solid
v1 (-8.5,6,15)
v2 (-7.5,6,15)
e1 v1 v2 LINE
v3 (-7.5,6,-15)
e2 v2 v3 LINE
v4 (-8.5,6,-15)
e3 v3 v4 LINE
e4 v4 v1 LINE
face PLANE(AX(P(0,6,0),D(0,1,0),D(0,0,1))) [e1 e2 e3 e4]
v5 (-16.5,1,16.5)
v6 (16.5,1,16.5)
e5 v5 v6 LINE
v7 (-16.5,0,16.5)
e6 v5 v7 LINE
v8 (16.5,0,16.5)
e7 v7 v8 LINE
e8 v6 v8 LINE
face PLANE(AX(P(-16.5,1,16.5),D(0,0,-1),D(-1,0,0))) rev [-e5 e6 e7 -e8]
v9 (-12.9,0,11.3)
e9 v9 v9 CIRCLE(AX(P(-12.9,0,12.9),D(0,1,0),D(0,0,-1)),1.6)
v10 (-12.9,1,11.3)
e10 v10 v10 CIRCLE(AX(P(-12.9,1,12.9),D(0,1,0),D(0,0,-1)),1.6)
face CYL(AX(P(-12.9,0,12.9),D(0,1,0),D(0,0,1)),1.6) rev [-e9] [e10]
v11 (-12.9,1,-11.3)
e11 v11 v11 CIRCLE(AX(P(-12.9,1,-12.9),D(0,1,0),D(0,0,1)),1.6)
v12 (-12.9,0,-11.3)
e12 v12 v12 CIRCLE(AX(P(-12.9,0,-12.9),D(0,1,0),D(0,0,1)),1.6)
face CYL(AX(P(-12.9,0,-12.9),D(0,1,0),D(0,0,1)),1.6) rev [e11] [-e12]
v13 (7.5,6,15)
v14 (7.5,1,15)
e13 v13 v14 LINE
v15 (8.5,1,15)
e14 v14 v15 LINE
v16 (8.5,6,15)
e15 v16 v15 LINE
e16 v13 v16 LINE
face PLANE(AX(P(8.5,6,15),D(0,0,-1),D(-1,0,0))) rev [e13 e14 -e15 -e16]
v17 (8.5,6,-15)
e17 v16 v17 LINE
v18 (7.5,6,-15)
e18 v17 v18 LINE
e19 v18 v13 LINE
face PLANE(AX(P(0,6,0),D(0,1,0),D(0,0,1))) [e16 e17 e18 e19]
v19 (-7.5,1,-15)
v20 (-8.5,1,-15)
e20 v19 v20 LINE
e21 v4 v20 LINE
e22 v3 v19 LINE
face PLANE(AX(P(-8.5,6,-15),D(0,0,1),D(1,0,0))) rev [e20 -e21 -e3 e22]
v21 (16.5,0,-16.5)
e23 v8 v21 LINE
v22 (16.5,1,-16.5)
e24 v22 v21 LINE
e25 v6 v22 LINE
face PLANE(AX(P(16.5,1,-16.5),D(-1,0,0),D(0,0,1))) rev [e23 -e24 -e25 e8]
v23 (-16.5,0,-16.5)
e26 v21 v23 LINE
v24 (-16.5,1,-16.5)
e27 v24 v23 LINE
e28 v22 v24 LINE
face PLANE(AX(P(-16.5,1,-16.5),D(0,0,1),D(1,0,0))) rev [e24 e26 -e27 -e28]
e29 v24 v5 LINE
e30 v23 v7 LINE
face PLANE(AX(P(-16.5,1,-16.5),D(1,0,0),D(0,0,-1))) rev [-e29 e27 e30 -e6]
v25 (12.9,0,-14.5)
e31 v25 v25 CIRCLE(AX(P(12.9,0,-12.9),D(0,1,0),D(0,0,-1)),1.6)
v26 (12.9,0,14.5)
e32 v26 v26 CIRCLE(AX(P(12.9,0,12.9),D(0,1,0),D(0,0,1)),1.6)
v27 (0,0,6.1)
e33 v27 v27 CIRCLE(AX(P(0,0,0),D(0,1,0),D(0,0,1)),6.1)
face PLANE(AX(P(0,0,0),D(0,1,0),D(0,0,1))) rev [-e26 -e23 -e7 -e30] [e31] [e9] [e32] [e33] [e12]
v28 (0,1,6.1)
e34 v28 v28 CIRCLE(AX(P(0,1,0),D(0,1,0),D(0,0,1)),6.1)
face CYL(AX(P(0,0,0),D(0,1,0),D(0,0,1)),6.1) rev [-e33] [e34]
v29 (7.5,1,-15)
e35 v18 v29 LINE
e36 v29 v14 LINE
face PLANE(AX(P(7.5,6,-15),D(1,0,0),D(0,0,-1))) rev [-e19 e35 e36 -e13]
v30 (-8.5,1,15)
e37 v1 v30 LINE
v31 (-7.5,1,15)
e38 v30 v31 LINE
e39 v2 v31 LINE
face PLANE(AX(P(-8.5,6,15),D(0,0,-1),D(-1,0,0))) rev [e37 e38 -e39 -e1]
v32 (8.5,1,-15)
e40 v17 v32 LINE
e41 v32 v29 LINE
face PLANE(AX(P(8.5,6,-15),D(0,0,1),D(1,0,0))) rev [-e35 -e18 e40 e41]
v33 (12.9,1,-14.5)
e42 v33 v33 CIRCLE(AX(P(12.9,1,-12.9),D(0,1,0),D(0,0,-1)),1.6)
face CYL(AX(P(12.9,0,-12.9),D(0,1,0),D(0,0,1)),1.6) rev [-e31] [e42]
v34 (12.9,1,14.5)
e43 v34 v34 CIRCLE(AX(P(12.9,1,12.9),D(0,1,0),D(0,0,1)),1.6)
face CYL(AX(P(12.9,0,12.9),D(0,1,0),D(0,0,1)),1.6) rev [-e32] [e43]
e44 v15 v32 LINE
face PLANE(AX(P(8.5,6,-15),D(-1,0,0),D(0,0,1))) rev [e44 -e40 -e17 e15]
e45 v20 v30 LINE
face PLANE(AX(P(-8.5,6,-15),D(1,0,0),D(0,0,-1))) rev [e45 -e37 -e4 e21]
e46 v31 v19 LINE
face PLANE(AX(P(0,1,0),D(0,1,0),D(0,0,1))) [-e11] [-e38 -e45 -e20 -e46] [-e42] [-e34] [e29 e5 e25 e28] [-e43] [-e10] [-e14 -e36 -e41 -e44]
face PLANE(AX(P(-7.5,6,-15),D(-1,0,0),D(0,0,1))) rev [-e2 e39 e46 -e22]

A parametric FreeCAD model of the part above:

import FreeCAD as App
import Part
import Sketcher


def add_polygon(sketch, points):
    """Adds a closed chain of lines whose ends are joined by coincident constraints."""
    first, n = sketch.GeometryCount, len(points)
    for a, b in zip(points, points[1:] + points[:1]):
        sketch.addGeometry(Part.LineSegment(App.Vector(*a, 0), App.Vector(*b, 0)), False)
    for i in range(n):
        sketch.addConstraint(Sketcher.Constraint("Coincident", first + i, 2, first + (i + 1) % n, 1))

doc = App.newDocument("Part")
params = doc.addObject("Spreadsheet::Sheet", "Params")
for row, (alias, value) in enumerate([
    ("sketch1_width", "33 mm"),
    ("pad1_length", "1 mm"),
    ("sketch2_diameter", "12.2 mm"),
    ("sketch2_diameter2", "3.2 mm"),
    ("sketch3_width", "1 mm"),
    ("sketch3_height", "30 mm"),
    ("pad2_length", "5 mm"),
], start=1):
    params.set(f"A{row}", alias)
    params.set(f"B{row}", "=" + value)
    params.setAlias(f"B{row}", alias)

body = doc.addObject("PartDesign::Body", "Body")

# Sketch on XZ plane
sketch1 = body.newObject("Sketcher::SketchObject", "Sketch")
sketch1.AttachmentSupport = (doc.getObject("XZ_Plane"), [""])
sketch1.MapMode = "FlatFace"
add_polygon(sketch1, [(-16, -16), (-16, 16), (16, 16), (16, -16)])  # lines 0-3
sketch1.addConstraint([
    Sketcher.Constraint("Vertical", 0),
    Sketcher.Constraint("Horizontal", 1),
    Sketcher.Constraint("Vertical", 2),
    Sketcher.Constraint("Horizontal", 3),
    Sketcher.Constraint("Symmetric", 0, 2, 2, 2, -1, 1),
    Sketcher.Constraint("Equal", 3, 0),
    Sketcher.Constraint("DistanceX", 1, 1, 1, 2, 33.0),
])
sketch1.setExpression("Constraints[10]", "Params.sketch1_width")
pad1 = body.newObject("PartDesign::Pad", "Pad")
pad1.Profile = sketch1
pad1.setExpression("Length", "Params.pad1_length")
pad1.Reversed = True

# Sketch on XZ plane
sketch2 = body.newObject("Sketcher::SketchObject", "Sketch001")
sketch2.AttachmentSupport = (doc.getObject("XZ_Plane"), [""])
sketch2.MapMode = "FlatFace"
sketch2.AttachmentOffset = App.Placement(App.Vector(0, 0, -1), App.Rotation())
sketch2.addGeometry([
    Part.Circle(App.Vector(0, 0, 0), App.Vector(0, 0, 1), 6.1),  # 0
    Part.Circle(App.Vector(-12.9, -12.9, 0), App.Vector(0, 0, 1), 1.6),  # 1
    Part.Circle(App.Vector(12.9, -12.9, 0), App.Vector(0, 0, 1), 1.6),  # 2
    Part.Circle(App.Vector(12.9, 12.9, 0), App.Vector(0, 0, 1), 1.6),  # 3
    Part.Circle(App.Vector(-12.9, 12.9, 0), App.Vector(0, 0, 1), 1.6),  # 4
], False)
sketch2.addConstraint([
    Sketcher.Constraint("Coincident", 0, 3, -1, 1),
    Sketcher.Constraint("Equal", 1, 2),
    Sketcher.Constraint("Equal", 2, 3),
    Sketcher.Constraint("Equal", 3, 4),
    Sketcher.Constraint("Symmetric", 1, 3, 3, 3, -1, 1),
    Sketcher.Constraint("Symmetric", 2, 3, 4, 3, -1, 1),
    Sketcher.Constraint("Symmetric", 1, 3, 2, 3, -2),
    Sketcher.Constraint("Diameter", 0, 12.2),
    Sketcher.Constraint("Diameter", 1, 3.2),
    Sketcher.Constraint("DistanceX", 1, 3, -1, 1, 12.9),
    Sketcher.Constraint("DistanceY", 1, 3, -1, 1, 12.9),
])
sketch2.setExpression("Constraints[7]", "Params.sketch2_diameter")
sketch2.setExpression("Constraints[8]", "Params.sketch2_diameter2")
pocket1 = body.newObject("PartDesign::Pocket", "Pocket")
pocket1.Profile = sketch2
pocket1.Type = "ThroughAll"
pocket1.Reversed = True

# Sketch on XZ plane
sketch3 = body.newObject("Sketcher::SketchObject", "Sketch002")
sketch3.AttachmentSupport = (doc.getObject("XZ_Plane"), [""])
sketch3.MapMode = "FlatFace"
sketch3.AttachmentOffset = App.Placement(App.Vector(0, 0, -1), App.Rotation())
add_polygon(sketch3, [(-8.5, -15), (-8.5, 15), (-7.5, 15), (-7.5, -15)])  # lines 0-3
add_polygon(sketch3, [(7.5, -15), (7.5, 15), (8.5, 15), (8.5, -15)])  # lines 4-7
sketch3.addConstraint([
    Sketcher.Constraint("Vertical", 0),
    Sketcher.Constraint("Horizontal", 1),
    Sketcher.Constraint("Vertical", 2),
    Sketcher.Constraint("Horizontal", 3),
    Sketcher.Constraint("Vertical", 4),
    Sketcher.Constraint("Horizontal", 5),
    Sketcher.Constraint("Vertical", 6),
    Sketcher.Constraint("Horizontal", 7),
    Sketcher.Constraint("Symmetric", 2, 2, 4, 2, -1, 1),
    Sketcher.Constraint("Symmetric", 0, 2, 6, 2, -1, 1),
    Sketcher.Constraint("Horizontal", 1, 2, 4, 2),
    Sketcher.Constraint("DistanceX", 1, 1, 1, 2, 1.0),
    Sketcher.Constraint("DistanceY", 0, 1, 0, 2, 30.0),
    Sketcher.Constraint("DistanceX", 1, 2, 4, 2, 15.0),
])
sketch3.setExpression("Constraints[19]", "Params.sketch3_width")
sketch3.setExpression("Constraints[20]", "Params.sketch3_height")
pad2 = body.newObject("PartDesign::Pad", "Pad001")
pad2.Profile = sketch3
pad2.setExpression("Length", "Params.pad2_length")
pad2.Reversed = True

doc.recompute()
